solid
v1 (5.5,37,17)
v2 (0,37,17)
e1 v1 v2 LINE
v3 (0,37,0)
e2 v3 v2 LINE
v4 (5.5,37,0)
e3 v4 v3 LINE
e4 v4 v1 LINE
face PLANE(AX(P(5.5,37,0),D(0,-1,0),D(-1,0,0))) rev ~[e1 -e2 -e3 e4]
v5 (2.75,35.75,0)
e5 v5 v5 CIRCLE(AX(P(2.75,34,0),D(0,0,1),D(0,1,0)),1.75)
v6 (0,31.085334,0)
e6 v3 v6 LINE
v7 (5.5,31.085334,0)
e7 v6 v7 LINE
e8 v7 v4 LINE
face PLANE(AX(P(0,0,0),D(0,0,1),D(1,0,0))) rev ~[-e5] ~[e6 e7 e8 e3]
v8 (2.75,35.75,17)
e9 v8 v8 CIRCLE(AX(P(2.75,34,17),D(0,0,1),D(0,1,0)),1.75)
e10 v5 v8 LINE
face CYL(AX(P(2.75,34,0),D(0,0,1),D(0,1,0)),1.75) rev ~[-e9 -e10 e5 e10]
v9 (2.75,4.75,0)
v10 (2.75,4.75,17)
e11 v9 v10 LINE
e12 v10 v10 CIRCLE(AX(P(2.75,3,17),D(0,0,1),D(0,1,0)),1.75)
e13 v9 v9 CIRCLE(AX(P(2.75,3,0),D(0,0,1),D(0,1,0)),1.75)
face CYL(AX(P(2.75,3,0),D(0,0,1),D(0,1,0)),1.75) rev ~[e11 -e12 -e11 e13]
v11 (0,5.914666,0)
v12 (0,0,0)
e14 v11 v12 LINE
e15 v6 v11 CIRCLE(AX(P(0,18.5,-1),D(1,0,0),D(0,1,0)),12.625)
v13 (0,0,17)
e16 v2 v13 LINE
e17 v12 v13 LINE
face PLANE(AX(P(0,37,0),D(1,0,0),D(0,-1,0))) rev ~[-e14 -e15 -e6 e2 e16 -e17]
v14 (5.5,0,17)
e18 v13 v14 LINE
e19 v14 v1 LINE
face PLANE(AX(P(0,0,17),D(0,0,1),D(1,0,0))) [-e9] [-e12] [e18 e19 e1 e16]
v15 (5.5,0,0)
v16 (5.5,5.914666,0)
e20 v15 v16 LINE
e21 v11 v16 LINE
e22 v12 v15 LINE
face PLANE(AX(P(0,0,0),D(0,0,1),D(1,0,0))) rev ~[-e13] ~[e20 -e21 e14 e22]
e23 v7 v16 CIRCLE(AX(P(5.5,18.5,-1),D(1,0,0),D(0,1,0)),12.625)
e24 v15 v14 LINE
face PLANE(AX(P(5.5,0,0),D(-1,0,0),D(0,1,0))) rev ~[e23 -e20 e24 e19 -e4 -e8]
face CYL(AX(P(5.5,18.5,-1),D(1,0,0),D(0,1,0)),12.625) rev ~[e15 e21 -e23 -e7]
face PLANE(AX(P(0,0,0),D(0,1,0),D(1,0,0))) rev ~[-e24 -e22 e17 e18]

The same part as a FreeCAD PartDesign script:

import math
import FreeCAD as App
import Part
import Sketcher

V = App.Vector

doc = App.newDocument("Part")
body = doc.addObject("PartDesign::Body", "Body")

sketch1 = body.newObject("Sketcher::SketchObject", "Sketch")
sketch1.AttachmentSupport = (doc.getObject("XY_Plane"), [""])
sketch1.MapMode = "FlatFace"
sketch1.addGeometry([
    Part.LineSegment(V(0, 37, 0), V(0, 0, 0)),
    Part.LineSegment(V(0, 0, 0), V(5.5, 0, 0)),
    Part.LineSegment(V(5.5, 0, 0), V(5.5, 37, 0)),
    Part.LineSegment(V(5.5, 37, 0), V(0, 37, 0)),
], False)
sketch1.addConstraint([
    Sketcher.Constraint("Coincident", 0, 2, 1, 1),
    Sketcher.Constraint("Coincident", 1, 2, 2, 1),
    Sketcher.Constraint("Coincident", 2, 2, 3, 1),
    Sketcher.Constraint("Coincident", 3, 2, 0, 1),
    Sketcher.Constraint("Vertical", 0),
    Sketcher.Constraint("Horizontal", 1),
    Sketcher.Constraint("Vertical", 2),
    Sketcher.Constraint("Horizontal", 3),
    Sketcher.Constraint("Coincident", 0, 2, -1, 1),
    Sketcher.Constraint("DistanceY", 0, 2, 0, 1, 37.0),
    Sketcher.Constraint("DistanceX", 1, 1, 1, 2, 5.5),
])
pad1 = body.newObject("PartDesign::Pad", "Pad")
pad1.Profile = sketch1
pad1.Length = 17

sketch2 = body.newObject("Sketcher::SketchObject", "Sketch001")
sketch2.AttachmentSupport = (doc.getObject("XY_Plane"), [""])
sketch2.MapMode = "FlatFace"
sketch2.addGeometry([
    Part.Circle(V(2.75, 34, 0), V(0, 0, 1), 1.75),
    Part.Circle(V(2.75, 3, 0), V(0, 0, 1), 1.75),
], False)
sketch2.addConstraint([
    Sketcher.Constraint("Equal", 0, 1),
    Sketcher.Constraint("Vertical", 0, 3, 1, 3),
    Sketcher.Constraint("Diameter", 0, 3.5),
    Sketcher.Constraint("DistanceY", -1, 1, 0, 3, 34.0),
    Sketcher.Constraint("DistanceY", -1, 1, 1, 3, 3.0),
    Sketcher.Constraint("DistanceX", -1, 1, 0, 3, 2.75),
])
doc.recompute()
hole = body.newObject("PartDesign::Hole", "Hole")
hole.Profile = sketch2
hole.ThreadType = "None"
hole.Diameter = 3.5
hole.DepthType = "ThroughAll"
hole.Reversed = True

sketch3 = body.newObject("Sketcher::SketchObject", "Sketch002")
sketch3.AttachmentSupport = (doc.getObject("YZ_Plane"), [""])
sketch3.MapMode = "FlatFace"
sketch3.AttachmentOffset = App.Placement(V(0, 0, 5.5), App.Rotation())
sketch3.addGeometry([
    Part.ArcOfCircle(Part.Circle(V(18.5, -1, 0), V(0, 0, 1), 12.625), math.radians(0), math.radians(180)),
    Part.LineSegment(V(5.875, -1, 0), V(31.125, -1, 0)),
], False)
sketch3.addConstraint([
    Sketcher.Constraint("Coincident", 0, 1, 1, 2),
    Sketcher.Constraint("Coincident", 1, 1, 0, 2),
    Sketcher.Constraint("Horizontal", 1),
    Sketcher.Constraint("Radius", 0, 12.625),
    Sketcher.Constraint("DistanceY", 0, 3, -1, 1, 1.0),
    Sketcher.Constraint("DistanceY", 0, 1, -1, 1, 1.0),
    Sketcher.Constraint("DistanceX", -1, 1, 0, 3, 18.5),
])
pocket1 = body.newObject("PartDesign::Pocket", "Pocket")
pocket1.Profile = sketch3
pocket1.Length = 5.5

doc.recompute()
